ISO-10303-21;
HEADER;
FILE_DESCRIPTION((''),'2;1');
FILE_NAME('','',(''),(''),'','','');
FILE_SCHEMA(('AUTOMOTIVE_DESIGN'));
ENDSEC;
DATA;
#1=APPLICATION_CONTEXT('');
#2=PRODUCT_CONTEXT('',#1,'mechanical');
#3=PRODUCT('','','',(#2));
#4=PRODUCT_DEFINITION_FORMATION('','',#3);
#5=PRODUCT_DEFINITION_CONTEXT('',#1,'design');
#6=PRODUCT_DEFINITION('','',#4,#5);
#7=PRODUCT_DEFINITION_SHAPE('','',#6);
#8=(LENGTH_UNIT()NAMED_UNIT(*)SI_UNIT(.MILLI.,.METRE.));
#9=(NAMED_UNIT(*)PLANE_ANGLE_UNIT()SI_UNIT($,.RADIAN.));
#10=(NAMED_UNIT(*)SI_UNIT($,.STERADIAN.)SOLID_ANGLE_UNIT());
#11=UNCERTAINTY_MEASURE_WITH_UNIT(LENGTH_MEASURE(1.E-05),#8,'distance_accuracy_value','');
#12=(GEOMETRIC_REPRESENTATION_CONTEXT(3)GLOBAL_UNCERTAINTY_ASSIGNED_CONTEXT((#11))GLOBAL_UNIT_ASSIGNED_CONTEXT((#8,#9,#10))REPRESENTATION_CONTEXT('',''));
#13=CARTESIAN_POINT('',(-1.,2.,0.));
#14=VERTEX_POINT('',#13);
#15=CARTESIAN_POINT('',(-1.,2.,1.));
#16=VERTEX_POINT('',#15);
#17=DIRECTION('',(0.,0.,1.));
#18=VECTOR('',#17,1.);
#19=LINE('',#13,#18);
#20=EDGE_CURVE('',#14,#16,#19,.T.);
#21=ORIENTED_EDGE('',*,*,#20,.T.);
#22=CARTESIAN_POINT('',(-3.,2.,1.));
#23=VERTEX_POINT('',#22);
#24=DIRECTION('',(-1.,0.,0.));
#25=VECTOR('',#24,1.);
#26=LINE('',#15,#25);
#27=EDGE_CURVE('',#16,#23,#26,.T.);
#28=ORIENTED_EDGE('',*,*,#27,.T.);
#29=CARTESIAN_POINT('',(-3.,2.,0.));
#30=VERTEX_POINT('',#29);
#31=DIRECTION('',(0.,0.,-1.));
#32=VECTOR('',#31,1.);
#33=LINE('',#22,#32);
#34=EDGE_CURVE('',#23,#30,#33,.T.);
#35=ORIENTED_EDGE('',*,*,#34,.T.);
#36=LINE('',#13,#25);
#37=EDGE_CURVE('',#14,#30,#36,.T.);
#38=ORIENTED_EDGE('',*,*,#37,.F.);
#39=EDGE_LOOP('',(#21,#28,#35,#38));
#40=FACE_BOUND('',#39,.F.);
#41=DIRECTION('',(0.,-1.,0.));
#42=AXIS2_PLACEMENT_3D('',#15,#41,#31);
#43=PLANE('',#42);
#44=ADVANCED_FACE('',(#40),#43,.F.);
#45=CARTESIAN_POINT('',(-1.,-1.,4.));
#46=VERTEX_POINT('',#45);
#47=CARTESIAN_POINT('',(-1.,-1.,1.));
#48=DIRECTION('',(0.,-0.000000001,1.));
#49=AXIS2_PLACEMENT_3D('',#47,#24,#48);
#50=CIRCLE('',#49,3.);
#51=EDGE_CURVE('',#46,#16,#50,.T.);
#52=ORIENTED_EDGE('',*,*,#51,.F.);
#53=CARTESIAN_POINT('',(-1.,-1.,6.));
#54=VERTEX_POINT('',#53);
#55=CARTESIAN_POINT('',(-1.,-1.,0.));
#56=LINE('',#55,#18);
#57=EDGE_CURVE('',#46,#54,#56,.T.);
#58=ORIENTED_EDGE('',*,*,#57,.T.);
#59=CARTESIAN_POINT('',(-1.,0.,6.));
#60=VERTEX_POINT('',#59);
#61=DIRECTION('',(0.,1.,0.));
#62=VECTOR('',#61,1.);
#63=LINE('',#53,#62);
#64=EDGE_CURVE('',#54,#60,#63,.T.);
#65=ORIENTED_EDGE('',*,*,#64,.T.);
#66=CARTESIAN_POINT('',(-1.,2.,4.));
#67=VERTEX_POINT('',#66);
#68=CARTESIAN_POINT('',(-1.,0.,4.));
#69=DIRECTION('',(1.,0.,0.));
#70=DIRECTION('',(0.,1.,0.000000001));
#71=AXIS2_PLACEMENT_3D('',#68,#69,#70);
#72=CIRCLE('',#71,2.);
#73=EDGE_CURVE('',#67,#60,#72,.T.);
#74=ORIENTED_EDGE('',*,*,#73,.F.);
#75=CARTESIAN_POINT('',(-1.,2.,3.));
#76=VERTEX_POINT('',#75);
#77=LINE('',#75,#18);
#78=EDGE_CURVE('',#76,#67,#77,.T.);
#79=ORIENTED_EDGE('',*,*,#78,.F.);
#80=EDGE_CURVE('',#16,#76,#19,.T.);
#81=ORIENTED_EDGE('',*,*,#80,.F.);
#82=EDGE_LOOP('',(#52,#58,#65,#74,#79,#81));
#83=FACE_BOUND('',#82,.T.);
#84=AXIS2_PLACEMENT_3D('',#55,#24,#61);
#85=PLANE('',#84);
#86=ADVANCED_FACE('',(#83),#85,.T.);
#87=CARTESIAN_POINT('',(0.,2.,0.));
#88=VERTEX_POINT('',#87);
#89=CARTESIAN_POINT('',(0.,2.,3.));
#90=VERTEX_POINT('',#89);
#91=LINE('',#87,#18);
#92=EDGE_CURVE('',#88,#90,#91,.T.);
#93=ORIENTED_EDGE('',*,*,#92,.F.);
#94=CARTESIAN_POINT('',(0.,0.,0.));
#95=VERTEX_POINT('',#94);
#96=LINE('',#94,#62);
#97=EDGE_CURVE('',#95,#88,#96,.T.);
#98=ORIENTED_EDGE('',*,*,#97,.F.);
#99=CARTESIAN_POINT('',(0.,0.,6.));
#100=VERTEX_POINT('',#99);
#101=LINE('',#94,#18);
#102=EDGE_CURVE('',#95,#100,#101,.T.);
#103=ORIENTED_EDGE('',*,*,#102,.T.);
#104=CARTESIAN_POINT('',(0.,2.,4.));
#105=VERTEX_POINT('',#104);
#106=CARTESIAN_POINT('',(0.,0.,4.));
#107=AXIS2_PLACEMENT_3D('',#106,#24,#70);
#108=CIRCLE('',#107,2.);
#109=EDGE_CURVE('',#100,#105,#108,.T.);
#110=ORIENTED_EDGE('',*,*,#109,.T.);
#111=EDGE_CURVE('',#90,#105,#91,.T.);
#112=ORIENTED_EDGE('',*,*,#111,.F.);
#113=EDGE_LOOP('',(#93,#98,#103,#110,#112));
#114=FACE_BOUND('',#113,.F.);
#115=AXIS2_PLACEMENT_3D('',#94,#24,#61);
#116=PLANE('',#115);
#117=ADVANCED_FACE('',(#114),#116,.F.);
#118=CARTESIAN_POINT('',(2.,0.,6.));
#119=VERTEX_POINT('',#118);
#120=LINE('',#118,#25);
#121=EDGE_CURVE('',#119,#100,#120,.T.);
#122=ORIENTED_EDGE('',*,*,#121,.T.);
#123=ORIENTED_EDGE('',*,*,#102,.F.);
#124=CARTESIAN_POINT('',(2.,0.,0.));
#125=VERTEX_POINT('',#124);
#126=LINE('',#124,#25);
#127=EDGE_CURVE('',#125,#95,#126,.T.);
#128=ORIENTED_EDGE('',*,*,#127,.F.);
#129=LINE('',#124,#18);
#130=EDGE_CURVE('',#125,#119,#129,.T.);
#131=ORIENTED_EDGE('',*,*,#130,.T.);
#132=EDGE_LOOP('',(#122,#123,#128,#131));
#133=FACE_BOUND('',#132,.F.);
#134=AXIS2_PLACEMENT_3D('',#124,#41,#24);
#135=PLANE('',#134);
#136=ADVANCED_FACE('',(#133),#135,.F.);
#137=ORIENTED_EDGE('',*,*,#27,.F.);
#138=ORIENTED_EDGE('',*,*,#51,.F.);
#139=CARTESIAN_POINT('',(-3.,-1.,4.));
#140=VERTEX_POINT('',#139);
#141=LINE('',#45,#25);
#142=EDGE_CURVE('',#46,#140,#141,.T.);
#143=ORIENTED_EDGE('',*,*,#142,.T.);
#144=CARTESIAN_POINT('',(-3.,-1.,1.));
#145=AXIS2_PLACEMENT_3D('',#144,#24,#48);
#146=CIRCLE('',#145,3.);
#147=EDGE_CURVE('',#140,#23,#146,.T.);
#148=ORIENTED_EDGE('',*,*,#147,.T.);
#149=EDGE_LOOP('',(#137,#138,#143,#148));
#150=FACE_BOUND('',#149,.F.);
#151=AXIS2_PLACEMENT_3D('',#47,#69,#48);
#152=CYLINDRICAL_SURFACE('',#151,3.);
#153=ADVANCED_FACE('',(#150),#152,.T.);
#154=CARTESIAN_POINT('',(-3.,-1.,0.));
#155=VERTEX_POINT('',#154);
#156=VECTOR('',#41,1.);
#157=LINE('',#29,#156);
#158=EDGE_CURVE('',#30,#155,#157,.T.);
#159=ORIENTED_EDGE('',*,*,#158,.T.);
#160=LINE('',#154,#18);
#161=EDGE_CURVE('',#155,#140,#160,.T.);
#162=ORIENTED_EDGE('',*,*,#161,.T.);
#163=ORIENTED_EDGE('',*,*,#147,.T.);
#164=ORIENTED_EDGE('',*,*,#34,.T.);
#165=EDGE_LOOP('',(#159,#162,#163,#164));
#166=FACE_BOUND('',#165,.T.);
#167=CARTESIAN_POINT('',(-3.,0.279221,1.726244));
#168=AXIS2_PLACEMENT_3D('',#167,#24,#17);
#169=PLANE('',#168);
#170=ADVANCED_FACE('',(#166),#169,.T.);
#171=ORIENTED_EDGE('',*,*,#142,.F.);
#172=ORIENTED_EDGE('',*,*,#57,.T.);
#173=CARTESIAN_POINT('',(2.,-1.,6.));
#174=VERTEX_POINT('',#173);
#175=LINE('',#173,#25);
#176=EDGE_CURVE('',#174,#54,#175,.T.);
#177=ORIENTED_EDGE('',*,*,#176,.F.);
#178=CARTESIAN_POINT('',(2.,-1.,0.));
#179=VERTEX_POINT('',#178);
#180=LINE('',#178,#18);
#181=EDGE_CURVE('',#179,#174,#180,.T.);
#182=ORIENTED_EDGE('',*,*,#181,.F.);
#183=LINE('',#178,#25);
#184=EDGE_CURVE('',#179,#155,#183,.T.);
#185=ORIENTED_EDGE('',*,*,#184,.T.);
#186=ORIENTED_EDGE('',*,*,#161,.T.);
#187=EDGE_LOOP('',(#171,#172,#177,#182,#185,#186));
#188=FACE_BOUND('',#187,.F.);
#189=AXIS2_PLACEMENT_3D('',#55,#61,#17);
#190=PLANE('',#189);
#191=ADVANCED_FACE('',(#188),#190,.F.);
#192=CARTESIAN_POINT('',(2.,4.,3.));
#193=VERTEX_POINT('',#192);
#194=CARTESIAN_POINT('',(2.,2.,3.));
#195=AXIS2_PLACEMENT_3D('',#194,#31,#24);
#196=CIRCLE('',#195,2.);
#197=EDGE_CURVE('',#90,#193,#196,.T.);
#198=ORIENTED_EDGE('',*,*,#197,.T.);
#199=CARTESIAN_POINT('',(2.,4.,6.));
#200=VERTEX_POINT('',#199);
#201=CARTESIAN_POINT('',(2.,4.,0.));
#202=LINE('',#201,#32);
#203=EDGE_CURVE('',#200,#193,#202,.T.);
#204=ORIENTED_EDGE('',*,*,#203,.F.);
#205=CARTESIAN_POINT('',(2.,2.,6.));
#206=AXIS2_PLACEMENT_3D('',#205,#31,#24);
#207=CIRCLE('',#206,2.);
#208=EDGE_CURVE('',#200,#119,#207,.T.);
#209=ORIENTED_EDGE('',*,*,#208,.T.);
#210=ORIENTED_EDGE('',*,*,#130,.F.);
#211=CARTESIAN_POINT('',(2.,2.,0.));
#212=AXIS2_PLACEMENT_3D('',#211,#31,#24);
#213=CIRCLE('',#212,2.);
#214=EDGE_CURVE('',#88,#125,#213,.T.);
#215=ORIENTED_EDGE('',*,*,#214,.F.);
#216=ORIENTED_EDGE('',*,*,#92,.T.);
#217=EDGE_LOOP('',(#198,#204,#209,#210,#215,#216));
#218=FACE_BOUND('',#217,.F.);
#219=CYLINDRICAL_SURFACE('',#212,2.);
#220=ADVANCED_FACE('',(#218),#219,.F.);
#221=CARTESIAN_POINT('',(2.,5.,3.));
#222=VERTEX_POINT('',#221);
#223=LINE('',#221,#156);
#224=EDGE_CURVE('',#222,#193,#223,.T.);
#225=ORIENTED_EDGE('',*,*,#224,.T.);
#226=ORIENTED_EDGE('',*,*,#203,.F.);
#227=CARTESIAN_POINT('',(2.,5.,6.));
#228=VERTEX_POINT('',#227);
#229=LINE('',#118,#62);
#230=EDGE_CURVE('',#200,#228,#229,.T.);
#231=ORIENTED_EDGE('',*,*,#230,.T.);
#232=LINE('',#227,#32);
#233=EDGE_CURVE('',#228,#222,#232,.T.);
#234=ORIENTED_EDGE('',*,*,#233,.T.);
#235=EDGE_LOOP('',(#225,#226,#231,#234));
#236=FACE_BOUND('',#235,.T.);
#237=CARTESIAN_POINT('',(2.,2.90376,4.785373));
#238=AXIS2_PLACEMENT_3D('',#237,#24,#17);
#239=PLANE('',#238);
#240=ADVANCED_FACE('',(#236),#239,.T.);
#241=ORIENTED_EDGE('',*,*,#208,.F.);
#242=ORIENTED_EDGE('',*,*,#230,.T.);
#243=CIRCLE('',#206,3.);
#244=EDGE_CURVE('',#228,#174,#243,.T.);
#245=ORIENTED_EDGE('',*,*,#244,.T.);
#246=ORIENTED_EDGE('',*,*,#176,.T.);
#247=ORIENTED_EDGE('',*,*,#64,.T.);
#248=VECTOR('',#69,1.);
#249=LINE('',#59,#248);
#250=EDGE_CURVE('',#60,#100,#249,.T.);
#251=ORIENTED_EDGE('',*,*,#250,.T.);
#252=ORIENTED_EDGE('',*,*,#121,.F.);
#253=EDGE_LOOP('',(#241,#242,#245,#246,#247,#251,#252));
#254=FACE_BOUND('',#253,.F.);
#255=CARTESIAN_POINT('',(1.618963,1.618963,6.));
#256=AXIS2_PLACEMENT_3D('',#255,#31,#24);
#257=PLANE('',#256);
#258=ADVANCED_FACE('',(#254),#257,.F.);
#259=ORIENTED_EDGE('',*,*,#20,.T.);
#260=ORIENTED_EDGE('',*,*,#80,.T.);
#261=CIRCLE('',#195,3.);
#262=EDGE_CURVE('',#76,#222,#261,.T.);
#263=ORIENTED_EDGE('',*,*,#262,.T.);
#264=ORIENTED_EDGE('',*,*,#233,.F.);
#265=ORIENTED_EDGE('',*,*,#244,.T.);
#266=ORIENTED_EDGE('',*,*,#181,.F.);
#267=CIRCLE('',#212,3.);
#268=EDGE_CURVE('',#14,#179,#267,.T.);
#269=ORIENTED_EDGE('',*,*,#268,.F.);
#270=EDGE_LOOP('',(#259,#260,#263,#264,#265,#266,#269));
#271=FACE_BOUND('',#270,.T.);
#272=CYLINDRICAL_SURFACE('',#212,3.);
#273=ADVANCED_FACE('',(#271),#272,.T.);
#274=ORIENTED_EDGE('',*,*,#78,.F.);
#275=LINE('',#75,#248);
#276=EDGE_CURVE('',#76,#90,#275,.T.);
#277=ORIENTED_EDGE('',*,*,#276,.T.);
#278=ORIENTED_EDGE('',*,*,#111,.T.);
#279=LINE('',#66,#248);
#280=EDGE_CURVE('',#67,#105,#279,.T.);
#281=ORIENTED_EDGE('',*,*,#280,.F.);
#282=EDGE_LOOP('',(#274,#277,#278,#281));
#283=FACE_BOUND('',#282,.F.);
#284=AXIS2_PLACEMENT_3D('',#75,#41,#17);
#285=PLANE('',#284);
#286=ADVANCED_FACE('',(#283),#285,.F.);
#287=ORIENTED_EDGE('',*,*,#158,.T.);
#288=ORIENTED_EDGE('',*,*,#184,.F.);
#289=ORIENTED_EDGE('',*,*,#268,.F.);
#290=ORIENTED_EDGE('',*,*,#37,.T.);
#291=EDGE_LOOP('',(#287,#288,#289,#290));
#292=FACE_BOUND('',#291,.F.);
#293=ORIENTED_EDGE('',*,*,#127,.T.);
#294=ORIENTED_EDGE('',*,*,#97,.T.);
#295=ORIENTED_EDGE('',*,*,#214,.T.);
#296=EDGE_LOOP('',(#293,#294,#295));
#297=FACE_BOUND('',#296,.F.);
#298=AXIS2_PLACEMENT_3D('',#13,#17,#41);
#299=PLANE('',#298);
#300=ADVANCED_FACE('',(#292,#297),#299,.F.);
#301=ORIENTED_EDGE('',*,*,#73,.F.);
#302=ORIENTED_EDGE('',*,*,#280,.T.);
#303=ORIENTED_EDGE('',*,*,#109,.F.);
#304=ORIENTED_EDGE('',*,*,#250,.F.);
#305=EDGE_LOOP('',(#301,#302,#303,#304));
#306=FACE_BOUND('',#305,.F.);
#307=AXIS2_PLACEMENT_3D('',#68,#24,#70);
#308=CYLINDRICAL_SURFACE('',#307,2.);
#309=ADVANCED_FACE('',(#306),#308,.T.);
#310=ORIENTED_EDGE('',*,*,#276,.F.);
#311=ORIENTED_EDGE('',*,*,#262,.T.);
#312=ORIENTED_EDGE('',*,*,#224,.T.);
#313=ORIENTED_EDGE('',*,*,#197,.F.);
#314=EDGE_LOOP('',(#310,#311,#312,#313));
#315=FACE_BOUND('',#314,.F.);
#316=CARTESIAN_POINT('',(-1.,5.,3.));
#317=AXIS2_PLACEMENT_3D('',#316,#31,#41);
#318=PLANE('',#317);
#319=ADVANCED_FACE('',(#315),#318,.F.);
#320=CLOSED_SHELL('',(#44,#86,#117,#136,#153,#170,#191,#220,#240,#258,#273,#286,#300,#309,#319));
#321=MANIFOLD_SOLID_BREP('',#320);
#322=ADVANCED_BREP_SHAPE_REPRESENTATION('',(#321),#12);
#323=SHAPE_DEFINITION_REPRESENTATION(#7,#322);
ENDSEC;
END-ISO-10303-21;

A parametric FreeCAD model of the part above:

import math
import FreeCAD as App
import Part
import Sketcher

V = App.Vector

doc = App.newDocument("Part")
params = doc.addObject("Spreadsheet::Sheet", "Params")
for row, (alias, value) in enumerate([
    ("sketch1_radius", "3 mm"),
    ("sketch1_radius2", "2 mm"),
    ("pad1_length", "6 mm"),
    ("sketch2_radius", "3 mm"),
    ("sketch2_height", "4 mm"),
    ("pad2_length", "2 mm"),
    ("sketch3_radius", "2 mm"),
    ("sketch3_width", "5 mm"),
    ("pocket1_length", "3 mm"),
], start=1):
    params.set(f"A{row}", alias)
    params.set(f"B{row}", "=" + value)
    params.setAlias(f"B{row}", alias)

body = doc.addObject("PartDesign::Body", "Body")

# Sketch on XY plane
sketch1 = body.newObject("Sketcher::SketchObject", "Sketch")
sketch1.AttachmentSupport = (doc.getObject("XY_Plane"), [""])
sketch1.MapMode = "FlatFace"
sketch1.addGeometry([
    Part.ArcOfCircle(Part.Circle(V(2, 2, 0), V(0, 0, 1), 3), math.radians(-90), math.radians(180)),  # 0
    Part.LineSegment(V(-1, 2, 0), V(-1, -1, 0)),  # 1
    Part.LineSegment(V(-1, -1, 0), V(2, -1, 0)),  # 2
    Part.LineSegment(V(0, 0, 0), V(0, 2, 0)),  # 3
    Part.ArcOfCircle(Part.Circle(V(2, 2, 0), V(0, 0, 1), 2), math.radians(-90), math.radians(180)),  # 4
    Part.LineSegment(V(2, 0, 0), V(0, 0, 0)),  # 5
], False)
sketch1.addConstraint([
    Sketcher.Constraint("Tangent", 0, 2, 1, 1),
    Sketcher.Constraint("Coincident", 1, 2, 2, 1),
    Sketcher.Constraint("Tangent", 2, 2, 0, 1),
    Sketcher.Constraint("Tangent", 3, 2, 4, 2),
    Sketcher.Constraint("Tangent", 4, 1, 5, 1),
    Sketcher.Constraint("Coincident", 5, 2, 3, 1),
    Sketcher.Constraint("Vertical", 1),
    Sketcher.Constraint("Horizontal", 2),
    Sketcher.Constraint("Vertical", 3),
    Sketcher.Constraint("Horizontal", 5),
    Sketcher.Constraint("Coincident", 5, 2, -1, 1),
    Sketcher.Constraint("Coincident", 4, 3, 0, 3),
    Sketcher.Constraint("Radius", 0, 3.0),
    Sketcher.Constraint("Radius", 4, 2.0),
])
sketch1.setExpression("Constraints[12]", "Params.sketch1_radius")
sketch1.setExpression("Constraints[13]", "Params.sketch1_radius2")
pad1 = body.newObject("PartDesign::Pad", "Pad")
pad1.Profile = sketch1
pad1.setExpression("Length", "Params.pad1_length")

# Sketch on YZ plane
sketch2 = body.newObject("Sketcher::SketchObject", "Sketch001")
sketch2.AttachmentSupport = (doc.getObject("YZ_Plane"), [""])
sketch2.MapMode = "FlatFace"
sketch2.AttachmentOffset = App.Placement(V(0, 0, -1), App.Rotation())
sketch2.addGeometry([
    Part.LineSegment(V(2, 0, 0), V(-1, 0, 0)),
    Part.LineSegment(V(-1, 0, 0), V(-1, 4, 0)),
    Part.ArcOfCircle(Part.Circle(V(-1, 1, 0), V(0, 0, 1), 3), math.radians(0), math.radians(90)),
    Part.LineSegment(V(2, 1, 0), V(2, 0, 0)),
], False)
sketch2.addConstraint([
    Sketcher.Constraint("Coincident", 0, 2, 1, 1),
    Sketcher.Constraint("Coincident", 1, 2, 2, 2),
    Sketcher.Constraint("Tangent", 2, 1, 3, 1),
    Sketcher.Constraint("Coincident", 3, 2, 0, 1),
    Sketcher.Constraint("Horizontal", 0),
    Sketcher.Constraint("Vertical", 1),
    Sketcher.Constraint("Vertical", 3),
    Sketcher.Constraint("PointOnObject", 0, 2, -1),
    Sketcher.Constraint("Vertical", 2, 3, 0, 2),
    Sketcher.Constraint("Radius", 2, 3.0),
    Sketcher.Constraint("DistanceY", 1, 1, 1, 2, 4.0),
    Sketcher.Constraint("DistanceX", 2, 3, -1, 1, 1.0),
])
sketch2.setExpression("Constraints[9]", "Params.sketch2_radius")
sketch2.setExpression("Constraints[10]", "Params.sketch2_height")
pad2 = body.newObject("PartDesign::Pad", "Pad001")
pad2.Profile = sketch2
pad2.setExpression("Length", "Params.pad2_length")
pad2.Reversed = True

# Sketch on YZ plane
sketch3 = body.newObject("Sketcher::SketchObject", "Sketch002")
sketch3.AttachmentSupport = (doc.getObject("YZ_Plane"), [""])
sketch3.MapMode = "FlatFace"
sketch3.AttachmentOffset = App.Placement(V(0, 0, -1), App.Rotation())
sketch3.addGeometry([
    Part.LineSegment(V(2, 3, 0), V(2, 4, 0)),  # 0
    Part.ArcOfCircle(Part.Circle(V(0, 4, 0), V(0, 0, 1), 2), math.radians(0), math.radians(90)),  # 1
    Part.LineSegment(V(0, 6, 0), V(5, 6, 0)),  # 2
    Part.LineSegment(V(5, 6, 0), V(5, 3, 0)),  # 3
    Part.LineSegment(V(5, 3, 0), V(2, 3, 0)),  # 4
], False)
sketch3.addConstraint([
    Sketcher.Constraint("Tangent", 0, 2, 1, 1),
    Sketcher.Constraint("Tangent", 1, 2, 2, 1),
    Sketcher.Constraint("Coincident", 2, 2, 3, 1),
    Sketcher.Constraint("Coincident", 3, 2, 4, 1),
    Sketcher.Constraint("Coincident", 4, 2, 0, 1),
    Sketcher.Constraint("Vertical", 0),
    Sketcher.Constraint("Horizontal", 2),
    Sketcher.Constraint("Vertical", 3),
    Sketcher.Constraint("Horizontal", 4),
    Sketcher.Constraint("PointOnObject", 1, 3, -2),
    Sketcher.Constraint("Equal", 4, 3),
    Sketcher.Constraint("Radius", 1, 2.0),
    Sketcher.Constraint("DistanceX", 2, 1, 2, 2, 5.0),
    Sketcher.Constraint("DistanceY", -1, 1, 1, 3, 4.0),
])
sketch3.setExpression("Constraints[11]", "Params.sketch3_radius")
sketch3.setExpression("Constraints[12]", "Params.sketch3_width")
pocket1 = body.newObject("PartDesign::Pocket", "Pocket")
pocket1.Profile = sketch3
pocket1.setExpression("Length", "Params.pocket1_length")
pocket1.Reversed = True

doc.recompute()
